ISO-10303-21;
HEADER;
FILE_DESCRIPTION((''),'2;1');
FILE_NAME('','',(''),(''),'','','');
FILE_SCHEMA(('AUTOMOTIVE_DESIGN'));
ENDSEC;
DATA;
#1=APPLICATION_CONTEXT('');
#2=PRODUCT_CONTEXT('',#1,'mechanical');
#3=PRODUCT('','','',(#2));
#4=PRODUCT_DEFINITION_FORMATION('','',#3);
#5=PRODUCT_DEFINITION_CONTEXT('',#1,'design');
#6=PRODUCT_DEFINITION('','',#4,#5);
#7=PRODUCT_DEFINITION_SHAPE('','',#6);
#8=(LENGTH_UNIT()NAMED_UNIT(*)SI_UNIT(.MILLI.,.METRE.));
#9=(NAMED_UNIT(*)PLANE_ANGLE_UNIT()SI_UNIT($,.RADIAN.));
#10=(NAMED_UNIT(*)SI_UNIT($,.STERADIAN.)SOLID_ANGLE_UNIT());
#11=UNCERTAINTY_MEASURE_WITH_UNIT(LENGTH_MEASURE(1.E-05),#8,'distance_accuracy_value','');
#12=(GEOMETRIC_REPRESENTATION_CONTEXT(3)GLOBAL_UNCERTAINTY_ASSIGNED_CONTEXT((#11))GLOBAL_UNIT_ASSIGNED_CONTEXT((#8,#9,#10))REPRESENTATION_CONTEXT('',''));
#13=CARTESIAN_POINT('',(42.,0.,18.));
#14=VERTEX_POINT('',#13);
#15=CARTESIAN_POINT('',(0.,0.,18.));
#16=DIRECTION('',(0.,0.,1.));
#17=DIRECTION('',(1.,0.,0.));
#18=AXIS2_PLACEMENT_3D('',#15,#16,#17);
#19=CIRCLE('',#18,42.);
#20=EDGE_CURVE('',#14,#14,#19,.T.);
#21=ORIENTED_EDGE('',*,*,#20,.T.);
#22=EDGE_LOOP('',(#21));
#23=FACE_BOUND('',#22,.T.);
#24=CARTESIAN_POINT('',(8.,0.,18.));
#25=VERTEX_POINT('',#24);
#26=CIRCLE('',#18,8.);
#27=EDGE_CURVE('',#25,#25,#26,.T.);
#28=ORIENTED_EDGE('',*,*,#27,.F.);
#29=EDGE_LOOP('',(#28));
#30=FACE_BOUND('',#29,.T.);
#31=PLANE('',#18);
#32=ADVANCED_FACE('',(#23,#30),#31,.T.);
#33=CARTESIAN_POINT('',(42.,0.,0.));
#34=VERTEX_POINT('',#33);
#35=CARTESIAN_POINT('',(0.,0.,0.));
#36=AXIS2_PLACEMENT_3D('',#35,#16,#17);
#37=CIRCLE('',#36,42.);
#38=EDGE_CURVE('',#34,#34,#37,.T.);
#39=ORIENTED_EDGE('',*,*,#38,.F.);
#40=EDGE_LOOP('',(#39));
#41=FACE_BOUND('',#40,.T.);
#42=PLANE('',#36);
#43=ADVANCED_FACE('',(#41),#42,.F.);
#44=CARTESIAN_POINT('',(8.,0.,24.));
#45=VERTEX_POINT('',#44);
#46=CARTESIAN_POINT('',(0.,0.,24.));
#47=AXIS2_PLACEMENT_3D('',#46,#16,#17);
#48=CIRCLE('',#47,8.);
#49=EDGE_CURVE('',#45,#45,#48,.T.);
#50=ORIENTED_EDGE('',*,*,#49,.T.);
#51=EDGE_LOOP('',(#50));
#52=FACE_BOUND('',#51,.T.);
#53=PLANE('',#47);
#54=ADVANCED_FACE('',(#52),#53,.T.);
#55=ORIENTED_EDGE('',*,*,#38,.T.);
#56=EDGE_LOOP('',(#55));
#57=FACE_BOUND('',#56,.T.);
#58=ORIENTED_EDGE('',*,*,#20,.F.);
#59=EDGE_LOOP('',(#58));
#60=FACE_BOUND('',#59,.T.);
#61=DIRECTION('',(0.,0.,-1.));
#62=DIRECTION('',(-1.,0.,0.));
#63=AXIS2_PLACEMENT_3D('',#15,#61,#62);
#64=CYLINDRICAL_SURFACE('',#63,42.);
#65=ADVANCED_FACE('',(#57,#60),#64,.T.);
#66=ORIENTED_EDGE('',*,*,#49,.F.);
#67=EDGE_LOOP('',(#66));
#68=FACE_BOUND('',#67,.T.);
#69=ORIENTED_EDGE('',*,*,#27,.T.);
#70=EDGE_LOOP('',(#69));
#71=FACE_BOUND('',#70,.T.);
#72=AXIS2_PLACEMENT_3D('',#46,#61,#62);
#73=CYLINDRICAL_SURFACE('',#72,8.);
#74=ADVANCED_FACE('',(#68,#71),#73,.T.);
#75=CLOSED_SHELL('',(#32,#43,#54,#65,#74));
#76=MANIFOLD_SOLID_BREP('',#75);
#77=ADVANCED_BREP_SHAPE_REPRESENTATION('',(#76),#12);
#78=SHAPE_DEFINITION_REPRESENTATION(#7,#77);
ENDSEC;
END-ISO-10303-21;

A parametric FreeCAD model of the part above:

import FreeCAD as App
import Part
import Sketcher

V = App.Vector

doc = App.newDocument("Part")
body = doc.addObject("PartDesign::Body", "Body")

sketch1 = body.newObject("Sketcher::SketchObject", "Sketch")
sketch1.AttachmentSupport = (doc.getObject("XY_Plane"), [""])
sketch1.MapMode = "FlatFace"
sketch1.addGeometry(Part.Circle(V(0, 0, 0), V(0, 0, 1), 8), False)
sketch1.addConstraint([
    Sketcher.Constraint("Coincident", 0, 3, -1, 1),
    Sketcher.Constraint("Diameter", 0, 16.0),
])
pad1 = body.newObject("PartDesign::Pad", "Pad")
pad1.Profile = sketch1
pad1.Length = 24

sketch2 = body.newObject("Sketcher::SketchObject", "Sketch001")
sketch2.AttachmentSupport = (doc.getObject("XY_Plane"), [""])
sketch2.MapMode = "FlatFace"
sketch2.addGeometry(Part.Circle(V(0, 0, 0), V(0, 0, 1), 42), False)
sketch2.addConstraint([
    Sketcher.Constraint("Coincident", 0, 3, -1, 1),
    Sketcher.Constraint("Diameter", 0, 84.0),
])
pad2 = body.newObject("PartDesign::Pad", "Pad001")
pad2.Profile = sketch2
pad2.Length = 18

doc.recompute()
